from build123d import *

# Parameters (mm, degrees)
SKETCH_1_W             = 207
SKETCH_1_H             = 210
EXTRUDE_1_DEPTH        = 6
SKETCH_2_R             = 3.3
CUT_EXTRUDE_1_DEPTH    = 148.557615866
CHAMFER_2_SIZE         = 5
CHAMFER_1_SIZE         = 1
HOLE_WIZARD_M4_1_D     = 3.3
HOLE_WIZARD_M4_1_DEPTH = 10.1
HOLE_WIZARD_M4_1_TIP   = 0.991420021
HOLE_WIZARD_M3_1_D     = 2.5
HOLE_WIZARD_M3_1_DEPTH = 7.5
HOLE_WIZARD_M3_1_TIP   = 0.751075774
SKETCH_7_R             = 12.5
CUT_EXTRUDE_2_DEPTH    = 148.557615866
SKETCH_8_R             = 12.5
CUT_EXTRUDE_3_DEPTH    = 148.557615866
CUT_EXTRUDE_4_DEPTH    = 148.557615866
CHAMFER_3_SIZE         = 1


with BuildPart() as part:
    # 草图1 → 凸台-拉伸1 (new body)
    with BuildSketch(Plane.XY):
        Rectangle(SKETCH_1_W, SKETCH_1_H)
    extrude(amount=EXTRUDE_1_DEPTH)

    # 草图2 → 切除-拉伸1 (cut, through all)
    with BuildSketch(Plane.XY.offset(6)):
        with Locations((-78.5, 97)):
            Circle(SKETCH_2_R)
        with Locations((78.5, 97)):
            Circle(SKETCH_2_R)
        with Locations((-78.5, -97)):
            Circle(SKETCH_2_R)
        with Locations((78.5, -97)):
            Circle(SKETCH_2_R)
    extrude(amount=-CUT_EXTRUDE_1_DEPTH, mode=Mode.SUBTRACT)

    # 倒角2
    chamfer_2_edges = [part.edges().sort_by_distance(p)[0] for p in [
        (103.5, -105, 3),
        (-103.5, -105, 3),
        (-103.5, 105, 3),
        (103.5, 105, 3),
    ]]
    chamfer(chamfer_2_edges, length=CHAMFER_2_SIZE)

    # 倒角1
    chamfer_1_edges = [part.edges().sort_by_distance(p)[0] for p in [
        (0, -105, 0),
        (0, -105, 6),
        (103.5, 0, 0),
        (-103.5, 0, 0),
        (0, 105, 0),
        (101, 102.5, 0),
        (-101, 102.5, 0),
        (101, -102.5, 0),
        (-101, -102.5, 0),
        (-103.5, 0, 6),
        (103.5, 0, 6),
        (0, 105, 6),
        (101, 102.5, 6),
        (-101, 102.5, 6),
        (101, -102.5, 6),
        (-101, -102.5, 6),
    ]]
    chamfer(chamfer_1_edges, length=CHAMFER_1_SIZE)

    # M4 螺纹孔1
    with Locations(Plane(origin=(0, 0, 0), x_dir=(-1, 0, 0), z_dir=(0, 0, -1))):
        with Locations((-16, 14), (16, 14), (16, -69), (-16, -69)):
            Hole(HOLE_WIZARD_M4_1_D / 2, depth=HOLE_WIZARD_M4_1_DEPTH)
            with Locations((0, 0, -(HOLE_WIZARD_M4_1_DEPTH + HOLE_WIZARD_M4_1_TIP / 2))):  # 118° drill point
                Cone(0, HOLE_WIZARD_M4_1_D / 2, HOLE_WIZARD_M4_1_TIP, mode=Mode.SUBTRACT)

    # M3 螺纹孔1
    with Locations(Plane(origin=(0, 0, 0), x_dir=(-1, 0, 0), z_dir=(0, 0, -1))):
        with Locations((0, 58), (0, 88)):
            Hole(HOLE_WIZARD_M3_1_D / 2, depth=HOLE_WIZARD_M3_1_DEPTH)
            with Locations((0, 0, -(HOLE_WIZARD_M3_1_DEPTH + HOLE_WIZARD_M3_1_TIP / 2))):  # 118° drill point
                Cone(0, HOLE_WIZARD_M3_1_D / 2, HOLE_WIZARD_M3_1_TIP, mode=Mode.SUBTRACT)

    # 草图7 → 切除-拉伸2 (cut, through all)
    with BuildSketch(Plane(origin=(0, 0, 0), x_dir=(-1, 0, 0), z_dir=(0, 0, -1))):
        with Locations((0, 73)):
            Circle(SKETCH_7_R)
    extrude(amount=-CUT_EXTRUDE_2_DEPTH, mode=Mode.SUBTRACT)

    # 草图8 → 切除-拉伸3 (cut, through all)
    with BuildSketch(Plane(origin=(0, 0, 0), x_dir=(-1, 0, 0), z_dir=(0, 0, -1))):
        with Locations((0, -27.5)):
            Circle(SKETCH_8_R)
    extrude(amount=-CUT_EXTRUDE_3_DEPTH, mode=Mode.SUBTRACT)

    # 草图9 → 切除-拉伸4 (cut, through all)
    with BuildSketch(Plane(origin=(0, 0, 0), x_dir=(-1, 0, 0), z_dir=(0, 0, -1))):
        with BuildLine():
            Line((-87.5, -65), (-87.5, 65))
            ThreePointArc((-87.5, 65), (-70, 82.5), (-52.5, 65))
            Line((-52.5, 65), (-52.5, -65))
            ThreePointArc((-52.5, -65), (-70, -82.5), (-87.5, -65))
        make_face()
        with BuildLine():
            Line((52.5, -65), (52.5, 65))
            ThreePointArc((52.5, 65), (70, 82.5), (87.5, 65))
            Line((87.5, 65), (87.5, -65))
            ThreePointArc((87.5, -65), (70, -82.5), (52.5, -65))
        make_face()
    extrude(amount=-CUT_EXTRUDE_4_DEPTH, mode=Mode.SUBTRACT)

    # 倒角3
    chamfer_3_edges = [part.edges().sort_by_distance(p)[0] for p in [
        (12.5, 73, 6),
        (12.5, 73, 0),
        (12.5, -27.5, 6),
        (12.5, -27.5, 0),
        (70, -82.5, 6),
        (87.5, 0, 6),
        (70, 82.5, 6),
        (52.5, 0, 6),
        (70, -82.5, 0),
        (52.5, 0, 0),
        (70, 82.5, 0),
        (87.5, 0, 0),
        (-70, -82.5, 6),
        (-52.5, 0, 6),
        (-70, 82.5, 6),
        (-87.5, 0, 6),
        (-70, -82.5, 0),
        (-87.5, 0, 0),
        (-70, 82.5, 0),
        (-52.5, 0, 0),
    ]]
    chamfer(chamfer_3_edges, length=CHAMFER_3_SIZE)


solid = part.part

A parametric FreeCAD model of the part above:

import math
import FreeCAD as App
import Part
import Sketcher
from FreeCAD import Vector


def edges_at(feature, points):
    """Names of the edges that pass closest to the given points."""
    edges = feature.Shape.Edges
    near = lambda p: min(range(len(edges)), key=lambda i: edges[i].distToShape(Part.Vertex(*p))[0])
    return sorted({f"Edge{near(p) + 1}" for p in points})


def add_polygon(sketch, points):
    """Adds a closed chain of lines whose ends are joined by coincident constraints."""
    first, n = sketch.GeometryCount, len(points)
    for a, b in zip(points, points[1:] + points[:1]):
        sketch.addGeometry(Part.LineSegment(App.Vector(*a, 0), App.Vector(*b, 0)), False)
    for i in range(n):
        sketch.addConstraint(Sketcher.Constraint("Coincident", first + i, 2, first + (i + 1) % n, 1))

doc = App.newDocument("Part")
params = doc.addObject("Spreadsheet::Sheet", "Params")
for row, (alias, value) in enumerate([
    ("sketch1_width", "207 mm"),
    ("sketch1_height", "210 mm"),
    ("pad1_length", "6 mm"),
    ("sketch2_diameter", "6.6 mm"),
    ("chamfer_size", "5 mm"),
    ("chamfer2_size", "1 mm"),
    ("sketch3_diameter", "3.3 mm"),
    ("hole_diameter", "3.3 mm"),
    ("hole_depth", "10.1 mm"),
    ("sketch4_diameter", "2.5 mm"),
    ("hole2_diameter", "2.5 mm"),
    ("hole2_depth", "7.5 mm"),
    ("sketch5_diameter", "25 mm"),
    ("sketch6_diameter", "25 mm"),
    ("sketch7_radius", "17.5 mm"),
    ("sketch7_height", "130 mm"),
    ("chamfer3_size", "1 mm"),
], start=1):
    params.set(f"A{row}", alias)
    params.set(f"B{row}", "=" + value)
    params.setAlias(f"B{row}", alias)

body = doc.addObject("PartDesign::Body", "Body")

sketch1 = doc.addObject("Sketcher::SketchObject", "Sketch")
body.addObject(sketch1)
sketch1.AttachmentSupport = (doc.XY_Plane, [""])
sketch1.MapMode = "FlatFace"
add_polygon(sketch1, [(-104, 105), (-104, -105), (104, -105), (104, 105)])
sketch1.addConstraint([
    Sketcher.Constraint("Vertical", 0),
    Sketcher.Constraint("Horizontal", 1),
    Sketcher.Constraint("Vertical", 2),
    Sketcher.Constraint("Horizontal", 3),
    Sketcher.Constraint("Symmetric", 0, 2, 2, 2, -1, 1),
    Sketcher.Constraint("DistanceX", 1, 1, 1, 2, 207.0),
    Sketcher.Constraint("DistanceY", 0, 2, 0, 1, 210.0),
])
sketch1.setExpression("Constraints[9]", "Params.sketch1_width")
sketch1.setExpression("Constraints[10]", "Params.sketch1_height")
pad1 = doc.addObject("PartDesign::Pad", "Pad")
body.addObject(pad1)
pad1.Profile = sketch1
pad1.setExpression("Length", "Params.pad1_length")

sketch2 = doc.addObject("Sketcher::SketchObject", "Sketch001")
body.addObject(sketch2)
sketch2.AttachmentSupport = (doc.XY_Plane, [""])
sketch2.MapMode = "FlatFace"
sketch2.AttachmentOffset = App.Placement(Vector(0, 0, 6), App.Rotation())
sketch2.addGeometry([
    Part.Circle(Vector(-78.5, 97, 0), Vector(0, 0, 1), 3.3),
    Part.Circle(Vector(78.5, 97, 0), Vector(0, 0, 1), 3.3),
    Part.Circle(Vector(-78.5, -97, 0), Vector(0, 0, 1), 3.3),
    Part.Circle(Vector(78.5, -97, 0), Vector(0, 0, 1), 3.3),
], False)
sketch2.addConstraint([
    Sketcher.Constraint("Equal", 0, 1),
    Sketcher.Constraint("Equal", 1, 2),
    Sketcher.Constraint("Equal", 2, 3),
    Sketcher.Constraint("Symmetric", 1, 3, 2, 3, -1, 1),
    Sketcher.Constraint("Symmetric", 0, 3, 3, 3, -1, 1),
    Sketcher.Constraint("Symmetric", 0, 3, 1, 3, -2),
    Sketcher.Constraint("Diameter", 0, 6.6),
    Sketcher.Constraint("DistanceY", -1, 1, 0, 3, 97.0),
    Sketcher.Constraint("DistanceX", 0, 3, 1, 3, 157.0),
])
sketch2.setExpression("Constraints[6]", "Params.sketch2_diameter")
pocket1 = doc.addObject("PartDesign::Pocket", "Pocket")
body.addObject(pocket1)
pocket1.Profile = sketch2
pocket1.Type = "ThroughAll"
doc.recompute()

chamfer = doc.addObject("PartDesign::Chamfer", "Chamfer")
body.addObject(chamfer)
chamfer.Base = (pocket1, edges_at(pocket1, [
    (103.5, -105, 3),
    (-103.5, -105, 3),
    (-103.5, 105, 3),
    (103.5, 105, 3),
]))
chamfer.setExpression("Size", "Params.chamfer_size")
doc.recompute()

chamfer2 = doc.addObject("PartDesign::Chamfer", "Chamfer001")
body.addObject(chamfer2)
chamfer2.Base = (chamfer, edges_at(chamfer, [
    (0, -105, 0),
    (0, -105, 6),
    (103.5, 0, 0),
    (-103.5, 0, 0),
    (0, 105, 0),
    (101, 102.5, 0),
    (-101, 102.5, 0),
    (101, -102.5, 0),
    (-101, -102.5, 0),
    (-103.5, 0, 6),
    (103.5, 0, 6),
    (0, 105, 6),
    (101, 102.5, 6),
    (-101, 102.5, 6),
    (101, -102.5, 6),
    (-101, -102.5, 6),
]))
chamfer2.setExpression("Size", "Params.chamfer2_size")

sketch3 = doc.addObject("Sketcher::SketchObject", "Sketch002")
body.addObject(sketch3)
sketch3.AttachmentSupport = (doc.XY_Plane, [""])
sketch3.MapMode = "FlatFace"
sketch3.addGeometry([
    Part.Circle(Vector(16, 14, 0), Vector(0, 0, 1), 1.6),
    Part.Circle(Vector(-16, 14, 0), Vector(0, 0, 1), 1.6),
    Part.Circle(Vector(-16, -69, 0), Vector(0, 0, 1), 1.6),
    Part.Circle(Vector(16, -69, 0), Vector(0, 0, 1), 1.6),
], False)
sketch3.addConstraint([
    Sketcher.Constraint("Equal", 0, 1),
    Sketcher.Constraint("Equal", 1, 2),
    Sketcher.Constraint("Equal", 2, 3),
    Sketcher.Constraint("Symmetric", 0, 3, 1, 3, -2),
    Sketcher.Constraint("Symmetric", 2, 3, 3, 3, -2),
    Sketcher.Constraint("Vertical", 1, 3, 2, 3),
    Sketcher.Constraint("Diameter", 0, 3.3),
    Sketcher.Constraint("DistanceX", -1, 1, 0, 3, 16.0),
    Sketcher.Constraint("DistanceY", -1, 1, 0, 3, 14.0),
    Sketcher.Constraint("DistanceY", 2, 3, -1, 1, 69.0),
])
sketch3.setExpression("Constraints[6]", "Params.sketch3_diameter")
doc.recompute()
hole = doc.addObject("PartDesign::Hole", "Hole")
body.addObject(hole)
hole.Profile = sketch3
hole.ThreadType = "None"
hole.setExpression("Diameter", "Params.hole_diameter")
hole.DepthType = "Dimension"
hole.setExpression("Depth", "Params.hole_depth")
hole.DrillPoint = "Angled"
hole.DrillPointAngle = 118
hole.Reversed = True

sketch4 = doc.addObject("Sketcher::SketchObject", "Sketch003")
body.addObject(sketch4)
sketch4.AttachmentSupport = (doc.XY_Plane, [""])
sketch4.MapMode = "FlatFace"
sketch4.addGeometry([
    Part.Circle(Vector(0, 58, 0), Vector(0, 0, 1), 1.2),
    Part.Circle(Vector(0, 88, 0), Vector(0, 0, 1), 1.2),
], False)
sketch4.addConstraint([
    Sketcher.Constraint("Equal", 0, 1),
    Sketcher.Constraint("PointOnObject", 0, 3, -2),
    Sketcher.Constraint("PointOnObject", 1, 3, -2),
    Sketcher.Constraint("Diameter", 0, 2.5),
    Sketcher.Constraint("DistanceY", -1, 1, 0, 3, 58.0),
    Sketcher.Constraint("DistanceY", -1, 1, 1, 3, 88.0),
])
sketch4.setExpression("Constraints[3]", "Params.sketch4_diameter")
doc.recompute()
hole2 = doc.addObject("PartDesign::Hole", "Hole001")
body.addObject(hole2)
hole2.Profile = sketch4
hole2.ThreadType = "None"
hole2.setExpression("Diameter", "Params.hole2_diameter")
hole2.DepthType = "Dimension"
hole2.setExpression("Depth", "Params.hole2_depth")
hole2.DrillPoint = "Angled"
hole2.DrillPointAngle = 118
hole2.Reversed = True

sketch5 = doc.addObject("Sketcher::SketchObject", "Sketch004")
body.addObject(sketch5)
sketch5.AttachmentSupport = (doc.XY_Plane, [""])
sketch5.MapMode = "FlatFace"
sketch5.addGeometry(Part.Circle(Vector(0, 73, 0), Vector(0, 0, 1), 12), False)
sketch5.addConstraint([
    Sketcher.Constraint("PointOnObject", 0, 3, -2),
    Sketcher.Constraint("Diameter", 0, 25.0),
    Sketcher.Constraint("DistanceY", -1, 1, 0, 3, 73.0),
])
sketch5.setExpression("Constraints[1]", "Params.sketch5_diameter")
pocket2 = doc.addObject("PartDesign::Pocket", "Pocket001")
body.addObject(pocket2)
pocket2.Profile = sketch5
pocket2.Type = "ThroughAll"
pocket2.Reversed = True

sketch6 = doc.addObject("Sketcher::SketchObject", "Sketch005")
body.addObject(sketch6)
sketch6.AttachmentSupport = (doc.XY_Plane, [""])
sketch6.MapMode = "FlatFace"
sketch6.addGeometry(Part.Circle(Vector(0, -28, 0), Vector(0, 0, 1), 12), False)
sketch6.addConstraint([
    Sketcher.Constraint("PointOnObject", 0, 3, -2),
    Sketcher.Constraint("Diameter", 0, 25.0),
    Sketcher.Constraint("DistanceY", 0, 3, -1, 1, 27.5),
])
sketch6.setExpression("Constraints[1]", "Params.sketch6_diameter")
pocket3 = doc.addObject("PartDesign::Pocket", "Pocket002")
body.addObject(pocket3)
pocket3.Profile = sketch6
pocket3.Type = "ThroughAll"
pocket3.Reversed = True

sketch7 = doc.addObject("Sketcher::SketchObject", "Sketch006")
body.addObject(sketch7)
sketch7.AttachmentSupport = (doc.XY_Plane, [""])
sketch7.MapMode = "FlatFace"
sketch7.addGeometry([
    Part.LineSegment(Vector(88, 65, 0), Vector(88, -65, 0)),
    Part.ArcOfCircle(Part.Circle(Vector(70, -65, 0), Vector(0, 0, 1), 18), math.radians(180), math.radians(360)),
    Part.LineSegment(Vector(52, -65, 0), Vector(52, 65, 0)),
    Part.ArcOfCircle(Part.Circle(Vector(70, 65, 0), Vector(0, 0, 1), 18), math.radians(0), math.radians(180)),
    Part.LineSegment(Vector(-52, 65, 0), Vector(-52, -65, 0)),
    Part.ArcOfCircle(Part.Circle(Vector(-70, -65, 0), Vector(0, 0, 1), 18), math.radians(180), math.radians(360)),
    Part.LineSegment(Vector(-88, -65, 0), Vector(-88, 65, 0)),
    Part.ArcOfCircle(Part.Circle(Vector(-70, 65, 0), Vector(0, 0, 1), 18), math.radians(0), math.radians(180)),
], False)
sketch7.addConstraint([
    Sketcher.Constraint("Tangent", 0, 2, 1, 2),
    Sketcher.Constraint("Tangent", 1, 1, 2, 1),
    Sketcher.Constraint("Tangent", 2, 2, 3, 2),
    Sketcher.Constraint("Tangent", 3, 1, 0, 1),
    Sketcher.Constraint("Tangent", 4, 2, 5, 2),
    Sketcher.Constraint("Tangent", 5, 1, 6, 1),
    Sketcher.Constraint("Tangent", 6, 2, 7, 2),
    Sketcher.Constraint("Tangent", 7, 1, 4, 1),
    Sketcher.Constraint("Vertical", 0),
    Sketcher.Constraint("Vertical", 2),
    Sketcher.Constraint("Vertical", 4),
    Sketcher.Constraint("Vertical", 6),
    Sketcher.Constraint("Equal", 3, 5),
    Sketcher.Constraint("Symmetric", 3, 3, 5, 3, -1, 1),
    Sketcher.Constraint("Horizontal", 1, 3, 5, 3),
    Sketcher.Constraint("Horizontal", 3, 3, 7, 3),
    Sketcher.Constraint("Radius", 1, 17.5),
    Sketcher.Constraint("DistanceY", 0, 2, 0, 1, 130.0),
    Sketcher.Constraint("DistanceX", -1, 1, 1, 3, 70.0),
])
sketch7.setExpression("Constraints[16]", "Params.sketch7_radius")
sketch7.setExpression("Constraints[17]", "Params.sketch7_height")
pocket4 = doc.addObject("PartDesign::Pocket", "Pocket003")
body.addObject(pocket4)
pocket4.Profile = sketch7
pocket4.Type = "ThroughAll"
pocket4.Reversed = True
doc.recompute()

chamfer3 = doc.addObject("PartDesign::Chamfer", "Chamfer002")
body.addObject(chamfer3)
chamfer3.Base = (pocket4, edges_at(pocket4, [
    (12.5, 73, 6),
    (12.5, 73, 0),
    (12.5, -27.5, 6),
    (12.5, -27.5, 0),
    (70, -82.5, 6),
    (87.5, 0, 6),
    (70, 82.5, 6),
    (52.5, 0, 6),
    (70, -82.5, 0),
    (52.5, 0, 0),
    (70, 82.5, 0),
    (87.5, 0, 0),
    (-70, -82.5, 6),
    (-52.5, 0, 6),
    (-70, 82.5, 6),
    (-87.5, 0, 6),
    (-70, -82.5, 0),
    (-87.5, 0, 0),
    (-70, 82.5, 0),
    (-52.5, 0, 0),
]))
chamfer3.setExpression("Size", "Params.chamfer3_size")

doc.recompute()
